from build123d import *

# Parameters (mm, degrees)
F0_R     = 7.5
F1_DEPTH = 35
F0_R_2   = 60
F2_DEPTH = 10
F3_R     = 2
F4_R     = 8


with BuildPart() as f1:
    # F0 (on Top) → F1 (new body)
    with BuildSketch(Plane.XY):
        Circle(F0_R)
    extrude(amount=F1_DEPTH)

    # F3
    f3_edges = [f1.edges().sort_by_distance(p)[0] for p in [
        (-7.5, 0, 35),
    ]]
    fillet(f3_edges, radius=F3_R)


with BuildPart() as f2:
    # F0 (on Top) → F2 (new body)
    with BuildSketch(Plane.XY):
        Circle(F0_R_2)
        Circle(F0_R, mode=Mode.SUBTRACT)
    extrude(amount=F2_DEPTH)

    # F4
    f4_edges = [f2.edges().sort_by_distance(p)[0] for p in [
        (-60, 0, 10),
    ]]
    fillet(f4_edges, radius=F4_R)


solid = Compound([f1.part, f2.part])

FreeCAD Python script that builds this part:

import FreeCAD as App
import Part
import Sketcher


def edges_at(feature, points):
    """Names of the edges that pass closest to the given points."""
    edges = feature.Shape.Edges
    near = lambda p: min(range(len(edges)), key=lambda i: edges[i].distToShape(Part.Vertex(*p))[0])
    return sorted({f"Edge{near(p) + 1}" for p in points})

doc = App.newDocument("Part")
body = doc.addObject("PartDesign::Body", "Body")

# Sketch on XY plane
sketch1 = body.newObject("Sketcher::SketchObject", "Sketch")
sketch1.AttachmentSupport = (doc.getObject("XY_Plane"), [""])
sketch1.MapMode = "FlatFace"
sketch1.addGeometry(Part.Circle(App.Vector(0, 0, 0), App.Vector(0, 0, 1), 7.5), False)
sketch1.addConstraint([
    Sketcher.Constraint("Coincident", 0, 3, -1, 1),
    Sketcher.Constraint("Diameter", 0, 15.0),
])
pad1 = body.newObject("PartDesign::Pad", "Pad")
pad1.Profile = sketch1
pad1.Length = 35
doc.recompute()

fillet = body.newObject("PartDesign::Fillet", "Fillet")
fillet.Base = (pad1, edges_at(pad1, [(-7.5, 0, 35)]))
fillet.Radius = 2
body2 = doc.addObject("PartDesign::Body", "Body001")

# Sketch on XY plane
sketch2 = body2.newObject("Sketcher::SketchObject", "Sketch001")
sketch2.AttachmentSupport = (doc.getObject("XY_Plane001"), [""])
sketch2.MapMode = "FlatFace"
sketch2.addGeometry([
    Part.Circle(App.Vector(0, 0, 0), App.Vector(0, 0, 1), 60),
    Part.Circle(App.Vector(0, 0, 0), App.Vector(0, 0, 1), 7.5),
], False)
sketch2.addConstraint([
    Sketcher.Constraint("Coincident", 0, 3, -1, 1),
    Sketcher.Constraint("Coincident", 1, 3, -1, 1),
    Sketcher.Constraint("Diameter", 0, 120.0),
    Sketcher.Constraint("Diameter", 1, 15.0),
])
pad2 = body2.newObject("PartDesign::Pad", "Pad001")
pad2.Profile = sketch2
pad2.Length = 10
doc.recompute()

fillet2 = body2.newObject("PartDesign::Fillet", "Fillet001")
fillet2.Base = (pad2, edges_at(pad2, [(-60, 0, 10)]))
fillet2.Radius = 8

doc.recompute()
